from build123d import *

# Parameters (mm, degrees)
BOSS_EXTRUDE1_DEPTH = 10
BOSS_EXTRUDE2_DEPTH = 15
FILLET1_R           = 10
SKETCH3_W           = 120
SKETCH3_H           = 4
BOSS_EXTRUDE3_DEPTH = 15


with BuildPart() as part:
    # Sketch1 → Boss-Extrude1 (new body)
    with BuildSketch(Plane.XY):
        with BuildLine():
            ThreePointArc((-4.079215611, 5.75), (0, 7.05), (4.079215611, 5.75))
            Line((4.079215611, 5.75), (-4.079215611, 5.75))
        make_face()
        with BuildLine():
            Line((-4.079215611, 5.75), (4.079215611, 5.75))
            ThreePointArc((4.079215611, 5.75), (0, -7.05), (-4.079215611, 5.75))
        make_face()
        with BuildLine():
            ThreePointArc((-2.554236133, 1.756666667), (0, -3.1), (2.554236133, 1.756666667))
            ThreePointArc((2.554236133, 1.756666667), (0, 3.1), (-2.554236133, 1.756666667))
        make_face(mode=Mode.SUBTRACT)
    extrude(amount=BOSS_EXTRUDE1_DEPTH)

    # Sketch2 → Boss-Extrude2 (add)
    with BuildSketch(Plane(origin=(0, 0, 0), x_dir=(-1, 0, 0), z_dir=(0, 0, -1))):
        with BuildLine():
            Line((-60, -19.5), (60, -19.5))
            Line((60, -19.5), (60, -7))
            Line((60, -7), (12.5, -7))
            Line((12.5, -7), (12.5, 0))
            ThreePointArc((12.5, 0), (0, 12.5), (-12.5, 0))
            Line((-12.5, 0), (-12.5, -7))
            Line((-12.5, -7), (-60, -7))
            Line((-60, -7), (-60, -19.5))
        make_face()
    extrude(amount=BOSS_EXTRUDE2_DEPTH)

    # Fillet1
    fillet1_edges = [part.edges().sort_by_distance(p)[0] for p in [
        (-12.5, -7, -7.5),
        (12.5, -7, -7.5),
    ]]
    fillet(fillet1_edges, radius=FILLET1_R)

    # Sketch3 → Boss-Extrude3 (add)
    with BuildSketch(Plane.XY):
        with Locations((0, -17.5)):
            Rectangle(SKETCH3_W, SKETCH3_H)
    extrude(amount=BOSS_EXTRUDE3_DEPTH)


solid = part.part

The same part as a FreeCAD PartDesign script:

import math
import FreeCAD as App
import Part
import Sketcher
from FreeCAD import Vector
Q = App.Units.Quantity


def edges_at(feature, points):
    """Names of the edges that pass closest to the given points."""
    edges = feature.Shape.Edges
    near = lambda p: min(range(len(edges)), key=lambda i: edges[i].distToShape(Part.Vertex(*p))[0])
    return sorted({f"Edge{near(p) + 1}" for p in points})

doc = App.newDocument("Part")
params = doc.addObject("Spreadsheet::Sheet", "Params")
for row, (alias, value) in enumerate([
    ("sketch1_radius", "3.1 mm"),
    ("sketch1_radius2", "7.05 mm"),
    ("pad1_length", "10 mm"),
    ("sketch2_radius", "12.5 mm"),
    ("sketch2_width", "120 mm"),
    ("sketch2_height", "7 mm"),
    ("sketch2_height2", "12.5 mm"),
    ("pad2_length", "15 mm"),
    ("fillet_radius", "10 mm"),
    ("sketch3_width", "120 mm"),
    ("sketch3_height", "4 mm"),
    ("pad3_length", "15 mm"),
], start=1):
    params.set(f"A{row}", alias)
    params.set(f"B{row}", "=" + value)
    params.setAlias(f"B{row}", alias)

body = doc.addObject("PartDesign::Body", "Body")

sketch1 = body.newObject("Sketcher::SketchObject", "Sketch")
sketch1.AttachmentSupport = (doc.getObject("XY_Plane"), [""])
sketch1.MapMode = "FlatFace"
sketch1.addGeometry(Part.ArcOfCircle(Part.Circle(Vector(0, 0, 0), Vector(0, 0, 1), 7.05), math.radians(54.647013), math.radians(125.352987)), False)
sketch1.addGeometry(Part.ArcOfCircle(Part.Circle(Vector(0, 0, 0), Vector(0, 0, 1), 7.05), math.radians(125.352987), math.radians(414.647013)), False)
sketch1.addGeometry(Part.ArcOfCircle(Part.Circle(Vector(0, 0, 0), Vector(0, 0, 1), 3.1), math.radians(34.518108), math.radians(145.481892)), False)
sketch1.addGeometry(Part.ArcOfCircle(Part.Circle(Vector(0, 0, 0), Vector(0, 0, 1), 3.1), math.radians(145.481892), math.radians(394.518108)), False)
sketch1.addConstraint(Sketcher.Constraint("Tangent", 0, 1, 1, 2))
sketch1.addConstraint(Sketcher.Constraint("Coincident", 1, 1, 0, 2))
sketch1.addConstraint(Sketcher.Constraint("Tangent", 2, 1, 3, 2))
sketch1.addConstraint(Sketcher.Constraint("Coincident", 3, 1, 2, 2))
sketch1.addConstraint(Sketcher.Constraint("Coincident", 0, 3, -1, 1))
sketch1.addConstraint(Sketcher.Constraint("Coincident", 2, 3, -1, 1))
sketch1.addConstraint(Sketcher.Constraint("Horizontal", 0, 1, 1, 1))
sketch1.addConstraint(Sketcher.Constraint("Horizontal", 2, 1, 3, 1))
sketch1.addConstraint(Sketcher.Constraint("Radius", 2, Q("3.1 mm")))
sketch1.addConstraint(Sketcher.Constraint("Radius", 0, Q("7.05 mm")))
sketch1.addConstraint(Sketcher.Constraint("DistanceY", -1, 1, 0, 1, Q("5.75 mm")))
sketch1.addConstraint(Sketcher.Constraint("DistanceX", 2, 1, 0, 1, Q("1.524979 mm")))
sketch1.setExpression("Constraints[8]", "Params.sketch1_radius")
sketch1.setExpression("Constraints[9]", "Params.sketch1_radius2")
pad1 = body.newObject("PartDesign::Pad", "Pad")
pad1.Profile = sketch1
pad1.setExpression("Length", "Params.pad1_length")

sketch2 = body.newObject("Sketcher::SketchObject", "Sketch001")
sketch2.AttachmentSupport = (doc.getObject("XY_Plane"), [""])
sketch2.MapMode = "FlatFace"
sketch2.addGeometry(Part.LineSegment(Vector(60, -19.5, 0), Vector(-60, -19.5, 0)), False)
sketch2.addGeometry(Part.LineSegment(Vector(-60, -19.5, 0), Vector(-60, -7, 0)), False)
sketch2.addGeometry(Part.LineSegment(Vector(-60, -7, 0), Vector(-12.5, -7, 0)), False)
sketch2.addGeometry(Part.LineSegment(Vector(-12.5, -7, 0), Vector(-12.5, 0, 0)), False)
sketch2.addGeometry(Part.ArcOfCircle(Part.Circle(Vector(0, 0, 0), Vector(0, 0, 1), 12.5), math.radians(0), math.radians(180)), False)
sketch2.addGeometry(Part.LineSegment(Vector(12.5, 0, 0), Vector(12.5, -7, 0)), False)
sketch2.addGeometry(Part.LineSegment(Vector(12.5, -7, 0), Vector(60, -7, 0)), False)
sketch2.addGeometry(Part.LineSegment(Vector(60, -7, 0), Vector(60, -19.5, 0)), False)
sketch2.addConstraint(Sketcher.Constraint("Coincident", 0, 2, 1, 1))
sketch2.addConstraint(Sketcher.Constraint("Coincident", 1, 2, 2, 1))
sketch2.addConstraint(Sketcher.Constraint("Coincident", 2, 2, 3, 1))
sketch2.addConstraint(Sketcher.Constraint("Tangent", 3, 2, 4, 2))
sketch2.addConstraint(Sketcher.Constraint("Tangent", 4, 1, 5, 1))
sketch2.addConstraint(Sketcher.Constraint("Coincident", 5, 2, 6, 1))
sketch2.addConstraint(Sketcher.Constraint("Coincident", 6, 2, 7, 1))
sketch2.addConstraint(Sketcher.Constraint("Coincident", 7, 2, 0, 1))
sketch2.addConstraint(Sketcher.Constraint("Horizontal", 0))
sketch2.addConstraint(Sketcher.Constraint("Vertical", 1))
sketch2.addConstraint(Sketcher.Constraint("Horizontal", 2))
sketch2.addConstraint(Sketcher.Constraint("Vertical", 3))
sketch2.addConstraint(Sketcher.Constraint("Vertical", 5))
sketch2.addConstraint(Sketcher.Constraint("Horizontal", 6))
sketch2.addConstraint(Sketcher.Constraint("Vertical", 7))
sketch2.addConstraint(Sketcher.Constraint("Coincident", 4, 3, -1, 1))
sketch2.addConstraint(Sketcher.Constraint("Symmetric", 1, 2, 6, 2, -2))
sketch2.addConstraint(Sketcher.Constraint("Radius", 4, Q("12.5 mm")))
sketch2.addConstraint(Sketcher.Constraint("DistanceX", 0, 2, 0, 1, Q("120 mm")))
sketch2.addConstraint(Sketcher.Constraint("DistanceY", 3, 1, 3, 2, Q("7 mm")))
sketch2.addConstraint(Sketcher.Constraint("DistanceY", 1, 1, 1, 2, Q("12.5 mm")))
sketch2.setExpression("Constraints[17]", "Params.sketch2_radius")
sketch2.setExpression("Constraints[18]", "Params.sketch2_width")
sketch2.setExpression("Constraints[19]", "Params.sketch2_height")
sketch2.setExpression("Constraints[20]", "Params.sketch2_height2")
pad2 = body.newObject("PartDesign::Pad", "Pad001")
pad2.Profile = sketch2
pad2.setExpression("Length", "Params.pad2_length")
pad2.Reversed = True
doc.recompute()

fillet = body.newObject("PartDesign::Fillet", "Fillet")
fillet.Base = (pad2, edges_at(pad2, [(-12.5, -7, -7.5), (12.5, -7, -7.5)]))
fillet.setExpression("Radius", "Params.fillet_radius")

sketch3 = body.newObject("Sketcher::SketchObject", "Sketch002")
sketch3.AttachmentSupport = (doc.getObject("XY_Plane"), [""])
sketch3.MapMode = "FlatFace"
sketch3.addGeometry(Part.LineSegment(Vector(-60, -15.5, 0), Vector(-60, -19.5, 0)), False)
sketch3.addGeometry(Part.LineSegment(Vector(-60, -19.5, 0), Vector(60, -19.5, 0)), False)
sketch3.addGeometry(Part.LineSegment(Vector(60, -19.5, 0), Vector(60, -15.5, 0)), False)
sketch3.addGeometry(Part.LineSegment(Vector(60, -15.5, 0), Vector(-60, -15.5, 0)), False)
sketch3.addConstraint(Sketcher.Constraint("Coincident", 0, 2, 1, 1))
sketch3.addConstraint(Sketcher.Constraint("Coincident", 1, 2, 2, 1))
sketch3.addConstraint(Sketcher.Constraint("Coincident", 2, 2, 3, 1))
sketch3.addConstraint(Sketcher.Constraint("Coincident", 3, 2, 0, 1))
sketch3.addConstraint(Sketcher.Constraint("Vertical", 0))
sketch3.addConstraint(Sketcher.Constraint("Horizontal", 1))
sketch3.addConstraint(Sketcher.Constraint("Vertical", 2))
sketch3.addConstraint(Sketcher.Constraint("Horizontal", 3))
sketch3.addConstraint(Sketcher.Constraint("DistanceX", 1, 1, 1, 2, Q("120 mm")))
sketch3.addConstraint(Sketcher.Constraint("DistanceY", 0, 2, 0, 1, Q("4 mm")))
sketch3.addConstraint(Sketcher.Constraint("DistanceX", 0, 2, -1, 1, Q("60 mm")))
sketch3.addConstraint(Sketcher.Constraint("DistanceY", 0, 2, -1, 1, Q("19.5 mm")))
sketch3.setExpression("Constraints[8]", "Params.sketch3_width")
sketch3.setExpression("Constraints[9]", "Params.sketch3_height")
pad3 = body.newObject("PartDesign::Pad", "Pad002")
pad3.Profile = sketch3
pad3.setExpression("Length", "Params.pad3_length")

doc.recompute()
